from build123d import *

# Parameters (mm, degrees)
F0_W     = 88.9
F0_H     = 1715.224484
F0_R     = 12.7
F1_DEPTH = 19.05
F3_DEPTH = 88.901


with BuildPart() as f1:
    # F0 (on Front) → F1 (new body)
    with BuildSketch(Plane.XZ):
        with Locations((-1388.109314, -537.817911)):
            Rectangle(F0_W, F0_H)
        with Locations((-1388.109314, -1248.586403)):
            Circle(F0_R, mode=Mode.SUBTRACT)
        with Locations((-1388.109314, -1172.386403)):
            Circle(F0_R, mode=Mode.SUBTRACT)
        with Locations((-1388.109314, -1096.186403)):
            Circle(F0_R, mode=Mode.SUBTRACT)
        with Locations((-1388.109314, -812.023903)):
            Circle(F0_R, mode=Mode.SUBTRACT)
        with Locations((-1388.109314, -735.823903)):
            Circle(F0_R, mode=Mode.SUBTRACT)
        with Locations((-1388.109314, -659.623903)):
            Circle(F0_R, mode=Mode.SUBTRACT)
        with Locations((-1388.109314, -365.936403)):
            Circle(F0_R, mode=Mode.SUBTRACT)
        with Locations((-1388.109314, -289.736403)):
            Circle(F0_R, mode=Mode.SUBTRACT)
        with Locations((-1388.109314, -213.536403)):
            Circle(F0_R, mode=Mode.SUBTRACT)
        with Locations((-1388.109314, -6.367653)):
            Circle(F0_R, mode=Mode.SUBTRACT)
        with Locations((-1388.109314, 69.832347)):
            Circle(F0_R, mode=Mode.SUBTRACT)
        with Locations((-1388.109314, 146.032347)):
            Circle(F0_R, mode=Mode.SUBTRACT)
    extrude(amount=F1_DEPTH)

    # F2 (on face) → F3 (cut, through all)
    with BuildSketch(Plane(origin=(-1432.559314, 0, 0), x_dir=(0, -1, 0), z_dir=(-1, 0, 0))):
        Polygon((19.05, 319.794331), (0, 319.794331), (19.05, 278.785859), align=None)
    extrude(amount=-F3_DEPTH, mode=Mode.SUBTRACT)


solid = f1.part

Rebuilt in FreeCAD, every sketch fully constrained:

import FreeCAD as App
import Part
import Sketcher

V = App.Vector
Q = App.Units.Quantity

doc = App.newDocument("Part")
params = doc.addObject("Spreadsheet::Sheet", "Params")
for row, (alias, value) in enumerate([
    ("sketch1_diameter", "1 in"),
    ("sketch1_width", "3.5 in"),
    ("pad1_length", "0.75 in"),
    ("sketch2_width", "0.75 in"),
], start=1):
    params.set(f"A{row}", alias)
    params.set(f"B{row}", "=" + value)
    params.setAlias(f"B{row}", alias)

body = doc.addObject("PartDesign::Body", "Body")

# Sketch on XZ plane
sketch1 = body.newObject("Sketcher::SketchObject", "Sketch")
sketch1.AttachmentSupport = (doc.getObject("XZ_Plane"), [""])
sketch1.MapMode = "FlatFace"
sketch1.addGeometry(Part.LineSegment(V(-1433, 320, 0), V(-1433, -1395, 0)), False)
sketch1.addGeometry(Part.LineSegment(V(-1433, -1395, 0), V(-1344, -1395, 0)), False)
sketch1.addGeometry(Part.LineSegment(V(-1344, -1395, 0), V(-1344, 320, 0)), False)
sketch1.addGeometry(Part.LineSegment(V(-1344, 320, 0), V(-1433, 320, 0)), False)
sketch1.addGeometry(Part.Circle(V(-1388, -1249, 0), V(0, 0, 1), 13), False)
sketch1.addGeometry(Part.Circle(V(-1388, -1172, 0), V(0, 0, 1), 13), False)
sketch1.addGeometry(Part.Circle(V(-1388, -1096, 0), V(0, 0, 1), 13), False)
sketch1.addGeometry(Part.Circle(V(-1388, -812, 0), V(0, 0, 1), 13), False)
sketch1.addGeometry(Part.Circle(V(-1388, -736, 0), V(0, 0, 1), 13), False)
sketch1.addGeometry(Part.Circle(V(-1388, -660, 0), V(0, 0, 1), 13), False)
sketch1.addGeometry(Part.Circle(V(-1388, -366, 0), V(0, 0, 1), 13), False)
sketch1.addGeometry(Part.Circle(V(-1388, -290, 0), V(0, 0, 1), 13), False)
sketch1.addGeometry(Part.Circle(V(-1388, -214, 0), V(0, 0, 1), 13), False)
sketch1.addGeometry(Part.Circle(V(-1388, -6, 0), V(0, 0, 1), 13), False)
sketch1.addGeometry(Part.Circle(V(-1388, 70, 0), V(0, 0, 1), 13), False)
sketch1.addGeometry(Part.Circle(V(-1388, 146, 0), V(0, 0, 1), 13), False)
sketch1.addConstraint(Sketcher.Constraint("Coincident", 0, 2, 1, 1))
sketch1.addConstraint(Sketcher.Constraint("Coincident", 1, 2, 2, 1))
sketch1.addConstraint(Sketcher.Constraint("Coincident", 2, 2, 3, 1))
sketch1.addConstraint(Sketcher.Constraint("Coincident", 3, 2, 0, 1))
sketch1.addConstraint(Sketcher.Constraint("Vertical", 0))
sketch1.addConstraint(Sketcher.Constraint("Horizontal", 1))
sketch1.addConstraint(Sketcher.Constraint("Vertical", 2))
sketch1.addConstraint(Sketcher.Constraint("Horizontal", 3))
sketch1.addConstraint(Sketcher.Constraint("Equal", 4, 5))
sketch1.addConstraint(Sketcher.Constraint("Equal", 5, 6))
sketch1.addConstraint(Sketcher.Constraint("Equal", 6, 7))
sketch1.addConstraint(Sketcher.Constraint("Equal", 7, 8))
sketch1.addConstraint(Sketcher.Constraint("Equal", 8, 9))
sketch1.addConstraint(Sketcher.Constraint("Equal", 9, 10))
sketch1.addConstraint(Sketcher.Constraint("Equal", 10, 11))
sketch1.addConstraint(Sketcher.Constraint("Equal", 11, 12))
sketch1.addConstraint(Sketcher.Constraint("Equal", 12, 13))
sketch1.addConstraint(Sketcher.Constraint("Equal", 13, 14))
sketch1.addConstraint(Sketcher.Constraint("Equal", 14, 15))
sketch1.addConstraint(Sketcher.Constraint("Vertical", 4, 3, 5, 3))
sketch1.addConstraint(Sketcher.Constraint("Vertical", 5, 3, 6, 3))
sketch1.addConstraint(Sketcher.Constraint("Vertical", 6, 3, 7, 3))
sketch1.addConstraint(Sketcher.Constraint("Vertical", 7, 3, 8, 3))
sketch1.addConstraint(Sketcher.Constraint("Vertical", 8, 3, 9, 3))
sketch1.addConstraint(Sketcher.Constraint("Vertical", 9, 3, 10, 3))
sketch1.addConstraint(Sketcher.Constraint("Vertical", 10, 3, 11, 3))
sketch1.addConstraint(Sketcher.Constraint("Vertical", 11, 3, 12, 3))
sketch1.addConstraint(Sketcher.Constraint("Vertical", 12, 3, 13, 3))
sketch1.addConstraint(Sketcher.Constraint("Vertical", 13, 3, 14, 3))
sketch1.addConstraint(Sketcher.Constraint("Vertical", 14, 3, 15, 3))
sketch1.addConstraint(Sketcher.Constraint("Diameter", 4, Q("1 in")))
sketch1.addConstraint(Sketcher.Constraint("DistanceX", 1, 1, 1, 2, Q("3.5 in")))
sketch1.addConstraint(Sketcher.Constraint("DistanceY", 4, 3, 5, 3, Q("3 in")))
sketch1.addConstraint(Sketcher.Constraint("DistanceY", 5, 3, 6, 3, Q("3 in")))
sketch1.addConstraint(Sketcher.Constraint("DistanceY", 7, 3, 8, 3, Q("3 in")))
sketch1.addConstraint(Sketcher.Constraint("DistanceY", 8, 3, 9, 3, Q("3 in")))
sketch1.addConstraint(Sketcher.Constraint("DistanceY", 10, 3, 11, 3, Q("3 in")))
sketch1.addConstraint(Sketcher.Constraint("DistanceY", 11, 3, 12, 3, Q("3 in")))
sketch1.addConstraint(Sketcher.Constraint("DistanceY", 13, 3, 14, 3, Q("3 in")))
sketch1.addConstraint(Sketcher.Constraint("DistanceY", 14, 3, 15, 3, Q("3 in")))
sketch1.addConstraint(Sketcher.Constraint("DistanceY", 6, 3, 10, 3, Q("28.75 in")))
sketch1.addConstraint(Sketcher.Constraint("DistanceX", 0, 2, 4, 3, Q("1.75 in")))
sketch1.addConstraint(Sketcher.Constraint("DistanceY", 6, 3, 7, 3, Q("11.1875 in")))
sketch1.addConstraint(Sketcher.Constraint("DistanceY", 12, 3, 13, 3, Q("8.15625 in")))
sketch1.addConstraint(Sketcher.Constraint("DistanceY", 0, 2, 4, 3, Q("5.78125 in")))
sketch1.addConstraint(Sketcher.Constraint("DistanceY", 0, 2, 0, 1, Q("1715.224484 mm")))
sketch1.addConstraint(Sketcher.Constraint("DistanceY", -1, 1, 2, 2, Q("319.794331 mm")))
sketch1.addConstraint(Sketcher.Constraint("DistanceX", 4, 3, -1, 1, Q("1388.109314 mm")))
sketch1.setExpression("Constraints[30]", "Params.sketch1_diameter")
sketch1.setExpression("Constraints[31]", "Params.sketch1_width")
pad1 = body.newObject("PartDesign::Pad", "Pad")
pad1.Profile = sketch1
pad1.setExpression("Length", "Params.pad1_length")

# Sketch on YZ plane
sketch2 = body.newObject("Sketcher::SketchObject", "Sketch001")
sketch2.AttachmentSupport = (doc.getObject("YZ_Plane"), [""])
sketch2.MapMode = "FlatFace"
sketch2.AttachmentOffset = App.Placement(V(0, 0, -1432.559314), App.Rotation())
sketch2.addGeometry(Part.LineSegment(V(-19, 320, 0), V(0, 320, 0)), False)
sketch2.addGeometry(Part.LineSegment(V(0, 320, 0), V(-19, 279, 0)), False)
sketch2.addGeometry(Part.LineSegment(V(-19, 279, 0), V(-19, 320, 0)), False)
sketch2.addConstraint(Sketcher.Constraint("Coincident", 0, 2, 1, 1))
sketch2.addConstraint(Sketcher.Constraint("Coincident", 1, 2, 2, 1))
sketch2.addConstraint(Sketcher.Constraint("Coincident", 2, 2, 0, 1))
sketch2.addConstraint(Sketcher.Constraint("Horizontal", 0))
sketch2.addConstraint(Sketcher.Constraint("Vertical", 2))
sketch2.addConstraint(Sketcher.Constraint("PointOnObject", 0, 2, -2))
sketch2.addConstraint(Sketcher.Constraint("DistanceX", 0, 1, 0, 2, Q("0.75 in")))
sketch2.addConstraint(Sketcher.Constraint("DistanceY", 2, 1, 2, 2, Q("41.008472 mm")))
sketch2.addConstraint(Sketcher.Constraint("DistanceY", -1, 1, 0, 2, Q("319.794331 mm")))
sketch2.setExpression("Constraints[6]", "Params.sketch2_width")
pocket1 = body.newObject("PartDesign::Pocket", "Pocket")
pocket1.Profile = sketch2
pocket1.Type = "ThroughAll"
pocket1.Reversed = True

doc.recompute()
